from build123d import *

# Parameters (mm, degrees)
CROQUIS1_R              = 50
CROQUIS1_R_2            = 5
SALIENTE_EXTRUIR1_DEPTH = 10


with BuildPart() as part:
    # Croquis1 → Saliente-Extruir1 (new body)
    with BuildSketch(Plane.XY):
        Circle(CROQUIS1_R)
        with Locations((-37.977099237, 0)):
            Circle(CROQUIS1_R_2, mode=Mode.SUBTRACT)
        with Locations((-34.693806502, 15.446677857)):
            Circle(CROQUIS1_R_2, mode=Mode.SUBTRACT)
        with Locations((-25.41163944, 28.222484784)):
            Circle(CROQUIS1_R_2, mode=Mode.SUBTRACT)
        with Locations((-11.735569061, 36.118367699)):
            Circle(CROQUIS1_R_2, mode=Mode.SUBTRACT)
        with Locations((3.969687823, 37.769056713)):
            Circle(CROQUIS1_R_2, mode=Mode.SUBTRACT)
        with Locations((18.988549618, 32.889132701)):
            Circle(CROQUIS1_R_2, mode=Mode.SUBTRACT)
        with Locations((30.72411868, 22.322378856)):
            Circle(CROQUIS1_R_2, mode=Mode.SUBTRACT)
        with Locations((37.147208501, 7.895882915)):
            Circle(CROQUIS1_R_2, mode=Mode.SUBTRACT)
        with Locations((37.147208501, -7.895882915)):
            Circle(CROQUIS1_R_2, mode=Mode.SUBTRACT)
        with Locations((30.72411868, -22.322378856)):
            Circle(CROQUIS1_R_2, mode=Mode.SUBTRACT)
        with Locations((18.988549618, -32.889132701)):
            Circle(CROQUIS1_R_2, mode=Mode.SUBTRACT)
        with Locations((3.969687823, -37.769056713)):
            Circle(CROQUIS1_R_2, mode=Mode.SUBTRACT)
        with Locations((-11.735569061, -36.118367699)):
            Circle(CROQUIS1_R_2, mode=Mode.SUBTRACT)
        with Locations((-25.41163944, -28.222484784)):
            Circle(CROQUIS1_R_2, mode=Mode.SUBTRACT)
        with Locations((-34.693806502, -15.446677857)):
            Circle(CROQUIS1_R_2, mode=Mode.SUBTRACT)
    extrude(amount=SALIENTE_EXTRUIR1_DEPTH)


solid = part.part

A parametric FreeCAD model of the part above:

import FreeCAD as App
import Part
import Sketcher
Q = App.Units.Quantity

doc = App.newDocument("Part")
body = doc.addObject("PartDesign::Body", "Body")

# Sketch on XY plane
sketch1 = body.newObject("Sketcher::SketchObject", "Sketch")
sketch1.AttachmentSupport = (doc.getObject("XY_Plane"), [""])
sketch1.MapMode = "FlatFace"
sketch1.addGeometry([
    Part.Circle(App.Vector(0, 0, 0), App.Vector(0, 0, 1), 50),  # 0
    Part.Circle(App.Vector(-25, -28, 0), App.Vector(0, 0, 1), 5),  # 1
    Part.Circle(App.Vector(-12, -36, 0), App.Vector(0, 0, 1), 5),  # 2
    Part.Circle(App.Vector(-35, -15, 0), App.Vector(0, 0, 1), 5),  # 3
    Part.Circle(App.Vector(4, -38, 0), App.Vector(0, 0, 1), 5),  # 4
    Part.Circle(App.Vector(19, -33, 0), App.Vector(0, 0, 1), 5),  # 5
    Part.Circle(App.Vector(31, -22, 0), App.Vector(0, 0, 1), 5),  # 6
    Part.Circle(App.Vector(37, -8, 0), App.Vector(0, 0, 1), 5),  # 7
    Part.Circle(App.Vector(-38, 0, 0), App.Vector(0, 0, 1), 5),  # 8
    Part.Circle(App.Vector(-35, 15, 0), App.Vector(0, 0, 1), 5),  # 9
    Part.Circle(App.Vector(-25, 28, 0), App.Vector(0, 0, 1), 5),  # 10
    Part.Circle(App.Vector(-12, 36, 0), App.Vector(0, 0, 1), 5),  # 11
    Part.Circle(App.Vector(37, 8, 0), App.Vector(0, 0, 1), 5),  # 12
    Part.Circle(App.Vector(4, 38, 0), App.Vector(0, 0, 1), 5),  # 13
    Part.Circle(App.Vector(19, 33, 0), App.Vector(0, 0, 1), 5),  # 14
    Part.Circle(App.Vector(31, 22, 0), App.Vector(0, 0, 1), 5),  # 15
], False)
sketch1.addConstraint([
    Sketcher.Constraint("Coincident", 0, 3, -1, 1),
    Sketcher.Constraint("Equal", 1, 2),
    Sketcher.Constraint("Equal", 2, 3),
    Sketcher.Constraint("Equal", 3, 4),
    Sketcher.Constraint("Equal", 4, 5),
    Sketcher.Constraint("Equal", 5, 6),
    Sketcher.Constraint("Equal", 6, 7),
    Sketcher.Constraint("Equal", 7, 8),
    Sketcher.Constraint("Equal", 8, 9),
    Sketcher.Constraint("Equal", 9, 10),
    Sketcher.Constraint("Equal", 10, 11),
    Sketcher.Constraint("Equal", 11, 12),
    Sketcher.Constraint("Equal", 12, 13),
    Sketcher.Constraint("Equal", 13, 14),
    Sketcher.Constraint("Equal", 14, 15),
    Sketcher.Constraint("Symmetric", 3, 3, 9, 3, -1),
    Sketcher.Constraint("Symmetric", 1, 3, 10, 3, -1),
    Sketcher.Constraint("Symmetric", 2, 3, 11, 3, -1),
    Sketcher.Constraint("Symmetric", 7, 3, 12, 3, -1),
    Sketcher.Constraint("Symmetric", 4, 3, 13, 3, -1),
    Sketcher.Constraint("Symmetric", 5, 3, 14, 3, -1),
    Sketcher.Constraint("Symmetric", 6, 3, 15, 3, -1),
    Sketcher.Constraint("PointOnObject", 8, 3, -1),
    Sketcher.Constraint("Diameter", 0, Q("100 mm")),
    Sketcher.Constraint("Diameter", 1, Q("10 mm")),
    Sketcher.Constraint("DistanceX", 8, 3, -1, 1, Q("37.977099 mm")),
    Sketcher.Constraint("DistanceX", 1, 3, -1, 1, Q("25.411639 mm")),
    Sketcher.Constraint("DistanceX", 2, 3, -1, 1, Q("11.735569 mm")),
    Sketcher.Constraint("DistanceX", -1, 1, 5, 3, Q("18.98855 mm")),
    Sketcher.Constraint("DistanceX", -1, 1, 6, 3, Q("30.724119 mm")),
    Sketcher.Constraint("DistanceY", 6, 3, -1, 1, Q("22.322379 mm")),
    Sketcher.Constraint("DistanceX", -1, 1, 7, 3, Q("37.147209 mm")),
    Sketcher.Constraint("DistanceY", 2, 3, 3, 3, Q("20.67169 mm")),
    Sketcher.Constraint("DistanceY", 4, 3, 2, 3, Q("1.650689 mm")),
    Sketcher.Constraint("DistanceY", 4, 3, 1, 3, Q("9.546572 mm")),
    Sketcher.Constraint("DistanceX", 4, 3, 5, 3, Q("15.018862 mm")),
    Sketcher.Constraint("DistanceY", 2, 3, 6, 3, Q("13.795989 mm")),
    Sketcher.Constraint("DistanceY", 5, 3, 7, 3, Q("24.99325 mm")),
    Sketcher.Constraint("DistanceY", 6, 3, 12, 3, Q("30.218262 mm")),
    Sketcher.Constraint("DistanceX", 3, 3, -1, 1, Q("34.693807 mm")),
])
pad1 = body.newObject("PartDesign::Pad", "Pad")
pad1.Profile = sketch1
pad1.Length = 10

doc.recompute()
